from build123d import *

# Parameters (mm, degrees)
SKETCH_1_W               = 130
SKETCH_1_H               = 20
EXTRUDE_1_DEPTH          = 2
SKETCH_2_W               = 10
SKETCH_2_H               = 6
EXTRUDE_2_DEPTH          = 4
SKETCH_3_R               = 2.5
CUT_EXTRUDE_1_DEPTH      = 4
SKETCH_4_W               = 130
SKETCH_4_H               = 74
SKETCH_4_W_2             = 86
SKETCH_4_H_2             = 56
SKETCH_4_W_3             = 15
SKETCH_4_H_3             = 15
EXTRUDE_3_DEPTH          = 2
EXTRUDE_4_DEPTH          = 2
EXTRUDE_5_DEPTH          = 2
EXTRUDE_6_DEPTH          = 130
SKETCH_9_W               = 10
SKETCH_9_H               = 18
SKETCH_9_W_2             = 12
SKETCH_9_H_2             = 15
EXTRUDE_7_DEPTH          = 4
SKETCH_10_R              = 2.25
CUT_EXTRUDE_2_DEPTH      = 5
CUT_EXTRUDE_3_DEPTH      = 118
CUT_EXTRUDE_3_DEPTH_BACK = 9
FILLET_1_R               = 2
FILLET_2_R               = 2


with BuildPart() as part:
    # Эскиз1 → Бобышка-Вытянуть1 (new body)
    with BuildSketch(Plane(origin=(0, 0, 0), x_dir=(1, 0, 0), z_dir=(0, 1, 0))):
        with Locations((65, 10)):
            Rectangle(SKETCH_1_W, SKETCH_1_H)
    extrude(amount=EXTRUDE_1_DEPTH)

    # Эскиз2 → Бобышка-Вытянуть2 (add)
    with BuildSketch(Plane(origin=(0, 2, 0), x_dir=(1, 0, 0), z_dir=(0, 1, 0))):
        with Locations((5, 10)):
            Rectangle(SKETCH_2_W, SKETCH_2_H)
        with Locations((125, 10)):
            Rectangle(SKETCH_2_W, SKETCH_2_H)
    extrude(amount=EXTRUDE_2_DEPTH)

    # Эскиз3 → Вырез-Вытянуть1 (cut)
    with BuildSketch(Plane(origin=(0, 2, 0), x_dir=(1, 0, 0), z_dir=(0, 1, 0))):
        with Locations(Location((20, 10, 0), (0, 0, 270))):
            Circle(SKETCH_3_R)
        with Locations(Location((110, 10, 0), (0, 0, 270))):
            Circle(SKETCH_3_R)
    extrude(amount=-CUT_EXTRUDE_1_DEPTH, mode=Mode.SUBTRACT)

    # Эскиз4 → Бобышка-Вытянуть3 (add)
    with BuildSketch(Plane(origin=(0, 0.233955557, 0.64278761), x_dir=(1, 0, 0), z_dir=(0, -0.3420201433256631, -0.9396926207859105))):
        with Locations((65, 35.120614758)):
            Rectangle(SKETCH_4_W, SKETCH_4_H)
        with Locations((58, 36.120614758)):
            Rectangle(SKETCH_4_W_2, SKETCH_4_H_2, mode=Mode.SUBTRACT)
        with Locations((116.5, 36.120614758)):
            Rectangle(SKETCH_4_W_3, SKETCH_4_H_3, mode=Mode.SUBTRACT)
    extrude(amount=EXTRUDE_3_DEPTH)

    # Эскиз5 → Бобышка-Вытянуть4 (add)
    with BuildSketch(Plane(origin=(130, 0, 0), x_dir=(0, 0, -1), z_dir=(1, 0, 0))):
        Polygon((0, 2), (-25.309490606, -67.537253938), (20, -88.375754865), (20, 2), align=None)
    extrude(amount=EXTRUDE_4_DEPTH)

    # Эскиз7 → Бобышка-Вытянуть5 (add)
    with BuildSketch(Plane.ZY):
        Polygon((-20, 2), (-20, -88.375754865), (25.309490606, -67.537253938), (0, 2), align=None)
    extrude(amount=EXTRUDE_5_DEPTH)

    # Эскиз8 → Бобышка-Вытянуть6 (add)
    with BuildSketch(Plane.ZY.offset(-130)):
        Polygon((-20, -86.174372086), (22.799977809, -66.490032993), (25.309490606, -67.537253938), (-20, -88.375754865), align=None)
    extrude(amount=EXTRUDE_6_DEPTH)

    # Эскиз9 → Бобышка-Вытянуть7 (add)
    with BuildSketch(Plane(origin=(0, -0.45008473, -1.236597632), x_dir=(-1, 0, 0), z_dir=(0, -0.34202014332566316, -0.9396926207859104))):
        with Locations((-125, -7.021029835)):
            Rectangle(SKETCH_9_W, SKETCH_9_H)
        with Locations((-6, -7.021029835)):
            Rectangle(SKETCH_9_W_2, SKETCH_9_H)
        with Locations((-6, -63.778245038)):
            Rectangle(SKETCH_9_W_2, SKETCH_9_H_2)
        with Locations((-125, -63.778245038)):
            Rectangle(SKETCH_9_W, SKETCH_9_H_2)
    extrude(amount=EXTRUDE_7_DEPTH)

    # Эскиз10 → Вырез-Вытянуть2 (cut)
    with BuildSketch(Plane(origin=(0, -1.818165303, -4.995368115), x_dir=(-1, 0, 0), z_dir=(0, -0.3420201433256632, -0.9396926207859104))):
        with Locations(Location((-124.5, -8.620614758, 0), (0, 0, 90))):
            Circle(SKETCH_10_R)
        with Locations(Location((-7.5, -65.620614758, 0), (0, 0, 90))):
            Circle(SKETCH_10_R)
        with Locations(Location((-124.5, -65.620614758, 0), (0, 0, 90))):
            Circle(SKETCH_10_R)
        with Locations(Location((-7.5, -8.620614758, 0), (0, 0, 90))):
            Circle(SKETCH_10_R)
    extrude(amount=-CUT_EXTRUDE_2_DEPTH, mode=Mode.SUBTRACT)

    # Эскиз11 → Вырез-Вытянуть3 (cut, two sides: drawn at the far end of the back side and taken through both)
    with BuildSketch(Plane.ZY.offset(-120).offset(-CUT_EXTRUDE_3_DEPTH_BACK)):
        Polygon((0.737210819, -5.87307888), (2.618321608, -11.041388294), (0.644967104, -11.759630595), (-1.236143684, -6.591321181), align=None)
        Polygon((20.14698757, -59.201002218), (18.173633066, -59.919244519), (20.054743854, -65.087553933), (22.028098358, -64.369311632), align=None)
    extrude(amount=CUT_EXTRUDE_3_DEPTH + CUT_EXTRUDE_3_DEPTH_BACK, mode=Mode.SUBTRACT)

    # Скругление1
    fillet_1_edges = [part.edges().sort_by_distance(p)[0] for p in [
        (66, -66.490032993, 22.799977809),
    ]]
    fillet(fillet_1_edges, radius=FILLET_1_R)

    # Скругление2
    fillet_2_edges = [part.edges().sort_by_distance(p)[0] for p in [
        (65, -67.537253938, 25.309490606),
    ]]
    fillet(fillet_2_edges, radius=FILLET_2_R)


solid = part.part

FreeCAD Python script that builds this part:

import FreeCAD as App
import Part
import Sketcher

V = App.Vector
Q = App.Units.Quantity


def edges_at(feature, points):
    """Names of the edges that pass closest to the given points."""
    edges = feature.Shape.Edges
    near = lambda p: min(range(len(edges)), key=lambda i: edges[i].distToShape(Part.Vertex(*p))[0])
    return sorted({f"Edge{near(p) + 1}" for p in points})


def add_polygon(sketch, points):
    """Adds a closed chain of lines whose ends are joined by coincident constraints."""
    first, n = sketch.GeometryCount, len(points)
    for a, b in zip(points, points[1:] + points[:1]):
        sketch.addGeometry(Part.LineSegment(App.Vector(*a, 0), App.Vector(*b, 0)), False)
    for i in range(n):
        sketch.addConstraint(Sketcher.Constraint("Coincident", first + i, 2, first + (i + 1) % n, 1))

doc = App.newDocument("Part")
body = doc.addObject("PartDesign::Body", "Body")

# Sketch on XZ plane
sketch1 = body.newObject("Sketcher::SketchObject", "Sketch")
sketch1.AttachmentSupport = (doc.getObject("XZ_Plane"), [""])
sketch1.MapMode = "FlatFace"
add_polygon(sketch1, [(0, -20), (0, 0), (130, 0), (130, -20)])  # lines 0-3
sketch1.addConstraint([
    Sketcher.Constraint("Vertical", 0),
    Sketcher.Constraint("Horizontal", 1),
    Sketcher.Constraint("Vertical", 2),
    Sketcher.Constraint("Horizontal", 3),
    Sketcher.Constraint("Coincident", 0, 2, -1, 1),
    Sketcher.Constraint("DistanceX", 1, 1, 1, 2, 130.0),
    Sketcher.Constraint("DistanceY", 0, 1, 0, 2, 20.0),
])
pad1 = body.newObject("PartDesign::Pad", "Pad")
pad1.Profile = sketch1
pad1.Length = 2
pad1.Reversed = True

# Sketch on XZ plane
sketch2 = body.newObject("Sketcher::SketchObject", "Sketch001")
sketch2.AttachmentSupport = (doc.getObject("XZ_Plane"), [""])
sketch2.MapMode = "FlatFace"
sketch2.AttachmentOffset = App.Placement(V(0, 0, -2), App.Rotation())
add_polygon(sketch2, [(0, -13), (0, -7), (10, -7), (10, -13)])  # lines 0-3
add_polygon(sketch2, [(120, -13), (120, -7), (130, -7), (130, -13)])  # lines 4-7
sketch2.addConstraint([
    Sketcher.Constraint("Vertical", 0),
    Sketcher.Constraint("Horizontal", 1),
    Sketcher.Constraint("Vertical", 2),
    Sketcher.Constraint("Horizontal", 3),
    Sketcher.Constraint("Vertical", 4),
    Sketcher.Constraint("Horizontal", 5),
    Sketcher.Constraint("Vertical", 6),
    Sketcher.Constraint("Horizontal", 7),
    Sketcher.Constraint("PointOnObject", 0, 2, -2),
    Sketcher.Constraint("Horizontal", 1, 2, 4, 2),
    Sketcher.Constraint("Horizontal", 3, 2, 6, 2),
    Sketcher.Constraint("Equal", 3, 5),
    Sketcher.Constraint("DistanceX", 1, 1, 1, 2, 10.0),
    Sketcher.Constraint("DistanceY", 0, 1, 0, 2, 6.0),
    Sketcher.Constraint("DistanceY", 0, 2, -1, 1, 7.0),
    Sketcher.Constraint("DistanceX", -1, 1, 4, 2, 120.0),
])
pad2 = body.newObject("PartDesign::Pad", "Pad001")
pad2.Profile = sketch2
pad2.Length = 4
pad2.Reversed = True

# Sketch on XZ plane
sketch3 = body.newObject("Sketcher::SketchObject", "Sketch002")
sketch3.AttachmentSupport = (doc.getObject("XZ_Plane"), [""])
sketch3.MapMode = "FlatFace"
sketch3.AttachmentOffset = App.Placement(V(0, 0, -2), App.Rotation())
sketch3.addGeometry([
    Part.Circle(V(20, -10, 0), V(0, 0, 1), 2.5),
    Part.Circle(V(110, -10, 0), V(0, 0, 1), 2.5),
], False)
sketch3.addConstraint([
    Sketcher.Constraint("Equal", 0, 1),
    Sketcher.Constraint("Horizontal", 0, 3, 1, 3),
    Sketcher.Constraint("Diameter", 0, 5.0),
    Sketcher.Constraint("DistanceX", -1, 1, 0, 3, 20.0),
    Sketcher.Constraint("DistanceY", 0, 3, -1, 1, 10.0),
    Sketcher.Constraint("DistanceX", -1, 1, 1, 3, 110.0),
])
pocket1 = body.newObject("PartDesign::Pocket", "Pocket")
pocket1.Profile = sketch3
pocket1.Length = 4
pocket1.Reversed = True

# Sketch on an angled plane
sketch4 = body.newObject("Sketcher::SketchObject", "Sketch003")
sketch4.Placement = App.Placement(V(0, 0.233956, 0.642788), App.Rotation(V(1, 0, 0), V(0, -0.939692621, 0.342020143), V(0, -0.342020143, -0.939692621), "ZXY"))
add_polygon(sketch4, [(0, 72), (0, -2), (130, -2), (130, 72)])  # lines 0-3
add_polygon(sketch4, [(101, 8), (15, 8), (15, 64), (101, 64)])  # lines 4-7
add_polygon(sketch4, [(124, 29), (109, 29), (109, 44), (124, 44)])  # lines 8-11
sketch4.addConstraint([
    Sketcher.Constraint("Vertical", 0),
    Sketcher.Constraint("Horizontal", 1),
    Sketcher.Constraint("Vertical", 2),
    Sketcher.Constraint("Horizontal", 3),
    Sketcher.Constraint("Horizontal", 4),
    Sketcher.Constraint("Vertical", 5),
    Sketcher.Constraint("Horizontal", 6),
    Sketcher.Constraint("Vertical", 7),
    Sketcher.Constraint("Horizontal", 8),
    Sketcher.Constraint("Vertical", 9),
    Sketcher.Constraint("Horizontal", 10),
    Sketcher.Constraint("Vertical", 11),
    Sketcher.Constraint("PointOnObject", 0, 2, -2),
    Sketcher.Constraint("Equal", 10, 9),
    Sketcher.Constraint("DistanceX", 1, 1, 1, 2, 130.0),
    Sketcher.Constraint("DistanceX", 4, 2, 4, 1, 86.0),
    Sketcher.Constraint("DistanceX", 8, 2, 8, 1, 15.0),
    Sketcher.Constraint("DistanceY", 0, 2, 0, 1, 74.0),
    Sketcher.Constraint("DistanceY", 5, 1, 5, 2, 56.0),
    Sketcher.Constraint("DistanceX", -1, 1, 4, 2, 15.0),
    Sketcher.Constraint("DistanceX", -1, 1, 8, 2, 109.0),
    Sketcher.Constraint("DistanceY", 0, 2, 4, 2, 10.0),
    Sketcher.Constraint("DistanceY", 7, 2, 8, 2, 20.5),
    Sketcher.Constraint("DistanceY", 0, 2, -1, 1, 1.879385),
])
pad3 = body.newObject("PartDesign::Pad", "Pad002")
pad3.Profile = sketch4
pad3.Length = 2

# Sketch on YZ plane
sketch5 = body.newObject("Sketcher::SketchObject", "Sketch004")
sketch5.AttachmentSupport = (doc.getObject("YZ_Plane"), [""])
sketch5.MapMode = "FlatFace"
sketch5.AttachmentOffset = App.Placement(V(0, 0, 130), App.Rotation())
add_polygon(sketch5, [(2, 0), (-68, 25), (-88, -20), (2, -20)])  # lines 0-3
sketch5.addConstraint([
    Sketcher.Constraint("Horizontal", 2),
    Sketcher.Constraint("Vertical", 3),
    Sketcher.Constraint("PointOnObject", 3, 2, -1),
    Sketcher.Constraint("DistanceY", 3, 1, 3, 2, 20.0),
    Sketcher.Constraint("Angle", 0, Q("160 deg")),
    Sketcher.Constraint("Distance", 0, 74.0),
    Sketcher.Constraint("DistanceX", -1, 1, 2, 2, 2.0),
    Sketcher.Constraint("DistanceX", 1, 2, 0, 2, 20.838501),
])
pad4 = body.newObject("PartDesign::Pad", "Pad003")
pad4.Profile = sketch5
pad4.Length = 2

# Sketch on YZ plane
sketch6 = body.newObject("Sketcher::SketchObject", "Sketch005")
sketch6.AttachmentSupport = (doc.getObject("YZ_Plane"), [""])
sketch6.MapMode = "FlatFace"
add_polygon(sketch6, [(2, -20), (-88, -20), (-68, 25), (2, 0)])  # lines 0-3
sketch6.addConstraint([
    Sketcher.Constraint("Horizontal", 0),
    Sketcher.Constraint("Vertical", 3),
    Sketcher.Constraint("PointOnObject", 2, 2, -1),
    Sketcher.Constraint("DistanceY", 3, 2, 3, 1, 20.0),
    Sketcher.Constraint("Angle", 2, Q("-20 deg")),
    Sketcher.Constraint("Distance", 2, 74.0),
    Sketcher.Constraint("DistanceX", -1, 1, 2, 2, 2.0),
    Sketcher.Constraint("DistanceX", 0, 2, 1, 2, 20.838501),
])
pad5 = body.newObject("PartDesign::Pad", "Pad004")
pad5.Profile = sketch6
pad5.Length = 2
pad5.Reversed = True

# Sketch on YZ plane
sketch7 = body.newObject("Sketcher::SketchObject", "Sketch006")
sketch7.AttachmentSupport = (doc.getObject("YZ_Plane"), [""])
sketch7.MapMode = "FlatFace"
sketch7.AttachmentOffset = App.Placement(V(0, 0, 130), App.Rotation())
add_polygon(sketch7, [(-66.5, 22.8), (-86.2, -20), (-88.4, -20), (-67.5, 25.3)])  # lines 0-3
sketch7.addConstraint([
    Sketcher.Constraint("Horizontal", 1),
    Sketcher.Constraint("Parallel", 0, 2),
    Sketcher.Constraint("DistanceY", 0, 2, -1, 1, 20.0),
    Sketcher.Constraint("DistanceX", 1, 2, 2, 2, 20.838501),
    Sketcher.Constraint("Distance", 3, 2.719251),
    Sketcher.Constraint("DistanceX", 1, 2, 1, 1, 2.201383),
    Sketcher.Constraint("DistanceY", -1, 1, 2, 2, 25.309491),
    Sketcher.Constraint("DistanceX", 0, 2, -1, 1, 86.174372),
])
pad6 = body.newObject("PartDesign::Pad", "Pad005")
pad6.Profile = sketch7
pad6.Length = 130
pad6.Reversed = True

# Sketch on an angled plane
sketch8 = body.newObject("Sketcher::SketchObject", "Sketch007")
sketch8.Placement = App.Placement(V(0, -0.450085, -1.236598), App.Rotation(V(-1, 0, 0), V(0, 0.939692621, -0.342020143), V(0, -0.342020143, -0.939692621), "ZXY"))
add_polygon(sketch8, [(-130, 2), (-130, -16), (-120, -16), (-120, 2)])  # lines 0-3
add_polygon(sketch8, [(-12, 2), (-12, -16), (0, -16), (0, 2)])  # lines 4-7
add_polygon(sketch8, [(-12, -56), (-12, -71), (0, -71), (0, -56)])  # lines 8-11
add_polygon(sketch8, [(-130, -56), (-130, -71), (-120, -71), (-120, -56)])  # lines 12-15
sketch8.addConstraint([
    Sketcher.Constraint("Vertical", 0),
    Sketcher.Constraint("Horizontal", 1),
    Sketcher.Constraint("Vertical", 2),
    Sketcher.Constraint("Horizontal", 3),
    Sketcher.Constraint("Vertical", 4),
    Sketcher.Constraint("Horizontal", 5),
    Sketcher.Constraint("Vertical", 6),
    Sketcher.Constraint("Horizontal", 7),
    Sketcher.Constraint("Vertical", 8),
    Sketcher.Constraint("Horizontal", 9),
    Sketcher.Constraint("Vertical", 10),
    Sketcher.Constraint("Horizontal", 11),
    Sketcher.Constraint("Vertical", 12),
    Sketcher.Constraint("Horizontal", 13),
    Sketcher.Constraint("Vertical", 14),
    Sketcher.Constraint("Horizontal", 15),
    Sketcher.Constraint("PointOnObject", 5, 2, -2),
    Sketcher.Constraint("PointOnObject", 9, 2, -2),
    Sketcher.Constraint("Horizontal", 1, 2, 4, 2),
    Sketcher.Constraint("Horizontal", 3, 2, 6, 2),
    Sketcher.Constraint("Horizontal", 9, 2, 12, 2),
    Sketcher.Constraint("Horizontal", 11, 2, 14, 2),
    Sketcher.Constraint("Vertical", 7, 2, 8, 2),
    Sketcher.Constraint("Vertical", 3, 2, 12, 2),
    Sketcher.Constraint("Vertical", 2, 2, 13, 2),
    Sketcher.Constraint("DistanceX", 1, 1, 1, 2, 10.0),
    Sketcher.Constraint("DistanceX", 5, 1, 5, 2, 12.0),
    Sketcher.Constraint("DistanceY", 0, 2, 0, 1, 18.0),
    Sketcher.Constraint("DistanceY", 8, 2, 8, 1, 15.0),
    Sketcher.Constraint("DistanceX", 0, 2, -1, 1, 130.0),
    Sketcher.Constraint("DistanceY", 0, 2, -1, 1, 16.02103),
    Sketcher.Constraint("DistanceY", 8, 2, -1, 1, 71.278245),
])
pad7 = body.newObject("PartDesign::Pad", "Pad006")
pad7.Profile = sketch8
pad7.Length = 4

# Sketch on an angled plane
sketch9 = body.newObject("Sketcher::SketchObject", "Sketch008")
sketch9.Placement = App.Placement(V(0, -1.818165, -4.995368), App.Rotation(V(-1, 0, 0), V(0, 0.939692621, -0.342020143), V(0, -0.342020143, -0.939692621), "ZXY"))
sketch9.addGeometry([
    Part.Circle(V(-124.5, -8.6, 0), V(0, 0, 1), 2.2),
    Part.Circle(V(-7.5, -65.6, 0), V(0, 0, 1), 2.2),
    Part.Circle(V(-124.5, -65.6, 0), V(0, 0, 1), 2.2),
    Part.Circle(V(-7.5, -8.6, 0), V(0, 0, 1), 2.2),
], False)
sketch9.addConstraint([
    Sketcher.Constraint("Equal", 0, 1),
    Sketcher.Constraint("Equal", 1, 2),
    Sketcher.Constraint("Equal", 2, 3),
    Sketcher.Constraint("Horizontal", 1, 3, 2, 3),
    Sketcher.Constraint("Horizontal", 0, 3, 3, 3),
    Sketcher.Constraint("Vertical", 0, 3, 2, 3),
    Sketcher.Constraint("Vertical", 1, 3, 3, 3),
    Sketcher.Constraint("Diameter", 0, 4.5),
    Sketcher.Constraint("DistanceX", 0, 3, 1, 3, 117.0),
    Sketcher.Constraint("DistanceY", 1, 3, 0, 3, 57.0),
    Sketcher.Constraint("DistanceX", 0, 3, -1, 1, 124.5),
    Sketcher.Constraint("DistanceY", 0, 3, -1, 1, 8.620615),
])
pocket2 = body.newObject("PartDesign::Pocket", "Pocket001")
pocket2.Profile = sketch9
pocket2.Length = 5

# Sketch on YZ plane
sketch10 = body.newObject("Sketcher::SketchObject", "Sketch009")
sketch10.AttachmentSupport = (doc.getObject("YZ_Plane"), [""])
sketch10.MapMode = "FlatFace"
sketch10.AttachmentOffset = App.Placement(V(0, 0, 120), App.Rotation())
add_polygon(sketch10, [(-11, 2.6), (-5.9, 0.7), (-6.6, -1.2), (-11.8, 0.6)])  # lines 0-3
add_polygon(sketch10, [(-59.2, 20.1), (-59.9, 18.2), (-65.1, 20.1), (-64.4, 22)])  # lines 4-7
sketch10.addConstraint([
    Sketcher.Constraint("Perpendicular", 0, 1),
    Sketcher.Constraint("Perpendicular", 1, 2),
    Sketcher.Constraint("Perpendicular", 2, 3),
    Sketcher.Constraint("Parallel", 3, 4),
    Sketcher.Constraint("Perpendicular", 4, 5),
    Sketcher.Constraint("Perpendicular", 5, 6),
    Sketcher.Constraint("Perpendicular", 6, 7),
    Sketcher.Constraint("Equal", 3, 4),
    Sketcher.Constraint("Equal", 2, 5),
    Sketcher.Constraint("Angle", 0, Q("-20 deg")),
    Sketcher.Constraint("Distance", 0, 5.5),
    Sketcher.Constraint("Distance", 1, 2.1),
    Sketcher.Constraint("DistanceY", -1, 1, 6, 2, 22.028098),
    Sketcher.Constraint("DistanceX", 0, 2, -1, 1, 5.873079),
    Sketcher.Constraint("DistanceY", -1, 1, 0, 2, 0.737211),
    Sketcher.Constraint("DistanceX", 6, 2, -1, 1, 64.369312),
])
pocket3 = body.newObject("PartDesign::Pocket", "Pocket002")
pocket3.Profile = sketch10
pocket3.Type = "TwoLengths"
pocket3.Length = 118
pocket3.Length2 = 9
doc.recompute()

fillet = body.newObject("PartDesign::Fillet", "Fillet")
fillet.Base = (pocket3, edges_at(pocket3, [(66, -66.49, 22.8)]))
fillet.Radius = 2
doc.recompute()

fillet2 = body.newObject("PartDesign::Fillet", "Fillet001")
fillet2.Base = (fillet, edges_at(fillet, [(65, -67.537, 25.309)]))
fillet2.Radius = 2

doc.recompute()
